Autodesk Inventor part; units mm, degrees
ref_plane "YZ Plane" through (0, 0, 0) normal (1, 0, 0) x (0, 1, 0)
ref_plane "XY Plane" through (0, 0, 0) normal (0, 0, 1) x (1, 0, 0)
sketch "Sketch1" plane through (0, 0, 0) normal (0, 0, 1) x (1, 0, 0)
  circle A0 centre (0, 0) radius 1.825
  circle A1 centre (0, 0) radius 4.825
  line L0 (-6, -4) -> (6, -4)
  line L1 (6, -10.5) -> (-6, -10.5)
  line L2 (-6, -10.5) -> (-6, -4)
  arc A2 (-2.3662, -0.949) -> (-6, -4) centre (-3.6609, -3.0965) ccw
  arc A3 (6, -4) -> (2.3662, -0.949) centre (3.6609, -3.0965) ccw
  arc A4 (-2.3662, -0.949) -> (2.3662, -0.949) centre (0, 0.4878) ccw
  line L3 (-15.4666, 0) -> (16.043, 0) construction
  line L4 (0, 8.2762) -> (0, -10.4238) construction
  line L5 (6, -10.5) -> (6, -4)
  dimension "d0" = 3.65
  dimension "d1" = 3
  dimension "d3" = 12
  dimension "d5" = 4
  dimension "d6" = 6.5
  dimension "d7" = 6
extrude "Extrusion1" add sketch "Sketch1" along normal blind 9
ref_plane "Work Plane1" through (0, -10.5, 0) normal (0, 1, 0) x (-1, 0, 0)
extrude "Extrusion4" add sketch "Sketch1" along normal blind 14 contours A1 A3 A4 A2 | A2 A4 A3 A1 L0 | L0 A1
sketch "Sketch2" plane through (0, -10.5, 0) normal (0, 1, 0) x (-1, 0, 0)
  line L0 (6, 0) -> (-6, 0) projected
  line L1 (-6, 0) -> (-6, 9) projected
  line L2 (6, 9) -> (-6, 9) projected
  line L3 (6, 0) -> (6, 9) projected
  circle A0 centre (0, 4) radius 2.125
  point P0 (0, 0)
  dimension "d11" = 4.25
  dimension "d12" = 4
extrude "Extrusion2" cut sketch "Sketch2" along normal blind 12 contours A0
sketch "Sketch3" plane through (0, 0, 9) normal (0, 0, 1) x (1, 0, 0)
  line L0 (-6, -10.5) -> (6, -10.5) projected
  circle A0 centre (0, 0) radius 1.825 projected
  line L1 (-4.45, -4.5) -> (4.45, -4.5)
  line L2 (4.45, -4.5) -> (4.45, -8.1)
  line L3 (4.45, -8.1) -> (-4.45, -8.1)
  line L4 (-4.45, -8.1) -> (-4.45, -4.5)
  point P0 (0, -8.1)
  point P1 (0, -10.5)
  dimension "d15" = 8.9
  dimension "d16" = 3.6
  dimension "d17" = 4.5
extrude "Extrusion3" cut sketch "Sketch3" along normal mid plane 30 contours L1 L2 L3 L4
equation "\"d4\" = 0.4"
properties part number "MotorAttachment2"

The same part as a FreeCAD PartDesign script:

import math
import FreeCAD as App
import Part
import Sketcher

V = App.Vector

doc = App.newDocument("Part")
body = doc.addObject("PartDesign::Body", "Body")

sketch1 = body.newObject("Sketcher::SketchObject", "Sketch")
sketch1.AttachmentSupport = (doc.getObject("XY_Plane"), [""])
sketch1.MapMode = "FlatFace"
sketch1.addGeometry([
    Part.ArcOfCircle(Part.Circle(V(0, 0, 0), V(0, 0, 1), 4.8), math.radians(-10), math.radians(190)),
    Part.ArcOfCircle(Part.Circle(V(-3.7, -3.1, 0), V(0, 0, 1), 2.5), math.radians(116), math.radians(201)),
    Part.LineSegment(V(-6, -4, 0), V(-6, -10.5, 0)),
    Part.LineSegment(V(-6, -10.5, 0), V(6, -10.5, 0)),
    Part.LineSegment(V(6, -10.5, 0), V(6, -4, 0)),
    Part.ArcOfCircle(Part.Circle(V(3.7, -3.1, 0), V(0, 0, 1), 2.5), math.radians(-21), math.radians(64)),
    Part.Circle(V(0, 0, 0), V(0, 0, 1), 1.8),
], False)
sketch1.addConstraint([
    Sketcher.Constraint("Coincident", 0, 2, 1, 1),
    Sketcher.Constraint("Coincident", 1, 2, 2, 1),
    Sketcher.Constraint("Coincident", 2, 2, 3, 1),
    Sketcher.Constraint("Coincident", 3, 2, 4, 1),
    Sketcher.Constraint("Coincident", 4, 2, 5, 1),
    Sketcher.Constraint("Coincident", 5, 2, 0, 1),
    Sketcher.Constraint("Vertical", 2),
    Sketcher.Constraint("Horizontal", 3),
    Sketcher.Constraint("Vertical", 4),
    Sketcher.Constraint("Coincident", 0, 3, -1, 1),
    Sketcher.Constraint("Coincident", 6, 3, -1, 1),
    Sketcher.Constraint("Equal", 1, 5),
    Sketcher.Constraint("Symmetric", 1, 3, 5, 3, -2),
    Sketcher.Constraint("Horizontal", 1, 2, 4, 2),
    Sketcher.Constraint("Diameter", 6, 3.65),
    Sketcher.Constraint("DistanceX", 3, 1, 3, 2, 12.0),
    Sketcher.Constraint("DistanceY", 2, 2, 2, 1, 6.5),
    Sketcher.Constraint("DistanceY", 1, 2, -1, 1, 4.0),
    Sketcher.Constraint("Radius", 0, 4.825),
    Sketcher.Constraint("Radius", 1, 2.5076),
    Sketcher.Constraint("DistanceX", 1, 3, -1, 1, 3.661),
])
pad1 = body.newObject("PartDesign::Pad", "Pad")
pad1.Profile = sketch1
pad1.Length = 9

sketch2 = body.newObject("Sketcher::SketchObject", "Sketch001")
sketch2.AttachmentSupport = (doc.getObject("XY_Plane"), [""])
sketch2.MapMode = "FlatFace"
sketch2.addGeometry([
    Part.Circle(V(0, 0, 0), V(0, 0, 1), 4.8),
    Part.Circle(V(0, 0, 0), V(0, 0, 1), 1.8),
], False)
sketch2.addConstraint([
    Sketcher.Constraint("Coincident", 0, 3, -1, 1),
    Sketcher.Constraint("Coincident", 1, 3, -1, 1),
    Sketcher.Constraint("Diameter", 1, 3.65),
    Sketcher.Constraint("Diameter", 0, 9.65),
])
pad2 = body.newObject("PartDesign::Pad", "Pad001")
pad2.Profile = sketch2
pad2.Length = 14

sketch3 = body.newObject("Sketcher::SketchObject", "Sketch002")
sketch3.AttachmentSupport = (doc.getObject("XZ_Plane"), [""])
sketch3.MapMode = "FlatFace"
sketch3.AttachmentOffset = App.Placement(V(0, 0, 10.5), App.Rotation())
sketch3.addGeometry(Part.Circle(V(0, 4, 0), V(0, 0, 1), 2.1), False)
sketch3.addConstraint([
    Sketcher.Constraint("PointOnObject", 0, 3, -2),
    Sketcher.Constraint("Diameter", 0, 4.25),
    Sketcher.Constraint("DistanceY", -1, 1, 0, 3, 4.0),
])
pocket1 = body.newObject("PartDesign::Pocket", "Pocket")
pocket1.Profile = sketch3
pocket1.Length = 12

sketch4 = body.newObject("Sketcher::SketchObject", "Sketch003")
sketch4.AttachmentSupport = (doc.getObject("XY_Plane"), [""])
sketch4.MapMode = "FlatFace"
sketch4.AttachmentOffset = App.Placement(V(0, 0, 9), App.Rotation())
sketch4.addGeometry([
    Part.LineSegment(V(4.5, -4.5, 0), V(-4.5, -4.5, 0)),
    Part.LineSegment(V(-4.5, -4.5, 0), V(-4.5, -8.1, 0)),
    Part.LineSegment(V(-4.5, -8.1, 0), V(4.5, -8.1, 0)),
    Part.LineSegment(V(4.5, -8.1, 0), V(4.5, -4.5, 0)),
], False)
sketch4.addConstraint([
    Sketcher.Constraint("Coincident", 0, 2, 1, 1),
    Sketcher.Constraint("Coincident", 1, 2, 2, 1),
    Sketcher.Constraint("Coincident", 2, 2, 3, 1),
    Sketcher.Constraint("Coincident", 3, 2, 0, 1),
    Sketcher.Constraint("Horizontal", 0),
    Sketcher.Constraint("Vertical", 1),
    Sketcher.Constraint("Horizontal", 2),
    Sketcher.Constraint("Vertical", 3),
    Sketcher.Constraint("DistanceX", 0, 2, 0, 1, 8.9),
    Sketcher.Constraint("DistanceY", 1, 2, 1, 1, 3.6),
    Sketcher.Constraint("DistanceY", 0, 2, -1, 1, 4.5),
    Sketcher.Constraint("DistanceX", 0, 2, -1, 1, 4.45),
])
pocket2 = body.newObject("PartDesign::Pocket", "Pocket001")
pocket2.Profile = sketch4
pocket2.Length = 30
pocket2.Midplane = True

doc.recompute()
